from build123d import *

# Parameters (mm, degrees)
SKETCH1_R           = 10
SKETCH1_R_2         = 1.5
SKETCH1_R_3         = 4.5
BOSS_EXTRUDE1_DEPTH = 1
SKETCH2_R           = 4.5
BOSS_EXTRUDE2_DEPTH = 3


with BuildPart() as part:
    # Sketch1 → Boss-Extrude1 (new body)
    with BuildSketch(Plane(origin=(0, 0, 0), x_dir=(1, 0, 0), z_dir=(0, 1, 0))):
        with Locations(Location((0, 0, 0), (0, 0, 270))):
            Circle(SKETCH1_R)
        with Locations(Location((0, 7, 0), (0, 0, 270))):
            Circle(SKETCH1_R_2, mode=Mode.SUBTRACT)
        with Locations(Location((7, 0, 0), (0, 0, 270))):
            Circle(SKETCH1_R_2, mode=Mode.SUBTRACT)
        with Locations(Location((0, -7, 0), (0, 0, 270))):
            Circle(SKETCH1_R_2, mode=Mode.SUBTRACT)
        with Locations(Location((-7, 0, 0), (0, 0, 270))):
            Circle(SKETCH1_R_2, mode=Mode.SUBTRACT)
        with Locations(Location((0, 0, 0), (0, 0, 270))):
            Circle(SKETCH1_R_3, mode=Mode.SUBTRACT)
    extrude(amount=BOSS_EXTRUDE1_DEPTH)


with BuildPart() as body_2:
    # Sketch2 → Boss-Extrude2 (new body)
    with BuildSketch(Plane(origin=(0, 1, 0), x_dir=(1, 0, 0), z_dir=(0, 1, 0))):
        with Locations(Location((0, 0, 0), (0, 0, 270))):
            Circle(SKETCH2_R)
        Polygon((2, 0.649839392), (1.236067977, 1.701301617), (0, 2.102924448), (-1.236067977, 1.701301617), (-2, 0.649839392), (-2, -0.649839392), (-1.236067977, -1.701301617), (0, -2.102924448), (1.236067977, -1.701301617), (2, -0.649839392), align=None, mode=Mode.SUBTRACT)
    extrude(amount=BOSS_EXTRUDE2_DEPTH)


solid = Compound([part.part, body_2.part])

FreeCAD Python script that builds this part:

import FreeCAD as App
import Part
import Sketcher
Q = App.Units.Quantity


def add_polygon(sketch, points):
    """Adds a closed chain of lines whose ends are joined by coincident constraints."""
    first, n = sketch.GeometryCount, len(points)
    for a, b in zip(points, points[1:] + points[:1]):
        sketch.addGeometry(Part.LineSegment(App.Vector(*a, 0), App.Vector(*b, 0)), False)
    for i in range(n):
        sketch.addConstraint(Sketcher.Constraint("Coincident", first + i, 2, first + (i + 1) % n, 1))

doc = App.newDocument("Part")
params = doc.addObject("Spreadsheet::Sheet", "Params")
for row, (alias, value) in enumerate([
    ("sketch1_diameter", "20 mm"),
    ("sketch1_diameter2", "3 mm"),
    ("sketch1_diameter3", "9 mm"),
    ("pad1_length", "1 mm"),
    ("sketch2_diameter", "9 mm"),
    ("pad2_length", "3 mm"),
], start=1):
    params.set(f"A{row}", alias)
    params.set(f"B{row}", "=" + value)
    params.setAlias(f"B{row}", alias)

body = doc.addObject("PartDesign::Body", "Body")

# Sketch on XZ plane
sketch1 = doc.addObject("Sketcher::SketchObject", "Sketch")
body.addObject(sketch1)
sketch1.AttachmentSupport = (doc.XZ_Plane, [""])
sketch1.MapMode = "FlatFace"
sketch1.addGeometry([
    Part.Circle(App.Vector(0, 0, 0), App.Vector(0, 0, 1), 10),  # 0
    Part.Circle(App.Vector(0, -7, 0), App.Vector(0, 0, 1), 1.5),  # 1
    Part.Circle(App.Vector(-7, 0, 0), App.Vector(0, 0, 1), 1.5),  # 2
    Part.Circle(App.Vector(7, 0, 0), App.Vector(0, 0, 1), 1.5),  # 3
    Part.Circle(App.Vector(0, 0, 0), App.Vector(0, 0, 1), 4.5),  # 4
    Part.Circle(App.Vector(0, 7, 0), App.Vector(0, 0, 1), 1.5),  # 5
], False)
sketch1.addConstraint([
    Sketcher.Constraint("Coincident", 0, 3, -1, 1),
    Sketcher.Constraint("Coincident", 4, 3, -1, 1),
    Sketcher.Constraint("Equal", 1, 2),
    Sketcher.Constraint("Equal", 2, 3),
    Sketcher.Constraint("Equal", 3, 5),
    Sketcher.Constraint("Symmetric", 2, 3, 3, 3, -1, 1),
    Sketcher.Constraint("Symmetric", 1, 3, 5, 3, -1, 1),
    Sketcher.Constraint("PointOnObject", 1, 3, -2),
    Sketcher.Constraint("PointOnObject", 2, 3, -1),
    Sketcher.Constraint("Diameter", 0, Q("20 mm")),
    Sketcher.Constraint("Diameter", 1, Q("3 mm")),
    Sketcher.Constraint("Diameter", 4, Q("9 mm")),
    Sketcher.Constraint("DistanceY", 1, 3, -1, 1, Q("7 mm")),
    Sketcher.Constraint("DistanceX", 2, 3, -1, 1, Q("7 mm")),
])
sketch1.setExpression("Constraints[9]", "Params.sketch1_diameter")
sketch1.setExpression("Constraints[10]", "Params.sketch1_diameter2")
sketch1.setExpression("Constraints[11]", "Params.sketch1_diameter3")
pad1 = doc.addObject("PartDesign::Pad", "Pad")
body.addObject(pad1)
pad1.Profile = sketch1
pad1.setExpression("Length", "Params.pad1_length")
pad1.Reversed = True
body2 = doc.addObject("PartDesign::Body", "Body001")

# Sketch on XZ plane
sketch2 = doc.addObject("Sketcher::SketchObject", "Sketch001")
body2.addObject(sketch2)
sketch2.AttachmentSupport = (doc.getObject("XZ_Plane001"), [""])
sketch2.MapMode = "FlatFace"
sketch2.AttachmentOffset = App.Placement(App.Vector(0, 0, -1), App.Rotation())
sketch2.addGeometry(Part.Circle(App.Vector(0, 0, 0), App.Vector(0, 0, 1), 4.5), False)  # 0
add_polygon(sketch2, [(1.2, -1.7), (2, -0.6), (2, 0.6), (1.2, 1.7), (0, 2.1), (-1.2, 1.7), (-2, 0.6), (-2, -0.6), (-1.2, -1.7), (0, -2.1)])  # lines 1-10
sketch2.addConstraint([
    Sketcher.Constraint("Vertical", 2),
    Sketcher.Constraint("Vertical", 7),
    Sketcher.Constraint("Coincident", 0, 3, -1, 1),
    Sketcher.Constraint("Symmetric", 1, 2, 6, 2, -1, 1),
    Sketcher.Constraint("Symmetric", 3, 2, 8, 2, -1, 1),
    Sketcher.Constraint("Symmetric", 4, 2, 9, 2, -1, 1),
    Sketcher.Constraint("Symmetric", 5, 2, 10, 2, -1, 1),
    Sketcher.Constraint("Symmetric", 3, 2, 5, 2, -2),
    Sketcher.Constraint("PointOnObject", 4, 2, -2),
    Sketcher.Constraint("Parallel", 3, 8),
    Sketcher.Constraint("Horizontal", 2, 2, 6, 2),
    Sketcher.Constraint("Equal", 3, 4),
    Sketcher.Constraint("Diameter", 0, Q("9 mm")),
    Sketcher.Constraint("Angle", 1, Q("54 deg")),
    Sketcher.Constraint("Angle", 4, Q("162 deg")),
    Sketcher.Constraint("DistanceX", -1, 1, 1, 2, Q("2 mm")),
    Sketcher.Constraint("DistanceY", 2, 1, 2, 2, Q("1.299679 mm")),
])
sketch2.setExpression("Constraints[22]", "Params.sketch2_diameter")
pad2 = doc.addObject("PartDesign::Pad", "Pad001")
body2.addObject(pad2)
pad2.Profile = sketch2
pad2.setExpression("Length", "Params.pad2_length")
pad2.Reversed = True

doc.recompute()
